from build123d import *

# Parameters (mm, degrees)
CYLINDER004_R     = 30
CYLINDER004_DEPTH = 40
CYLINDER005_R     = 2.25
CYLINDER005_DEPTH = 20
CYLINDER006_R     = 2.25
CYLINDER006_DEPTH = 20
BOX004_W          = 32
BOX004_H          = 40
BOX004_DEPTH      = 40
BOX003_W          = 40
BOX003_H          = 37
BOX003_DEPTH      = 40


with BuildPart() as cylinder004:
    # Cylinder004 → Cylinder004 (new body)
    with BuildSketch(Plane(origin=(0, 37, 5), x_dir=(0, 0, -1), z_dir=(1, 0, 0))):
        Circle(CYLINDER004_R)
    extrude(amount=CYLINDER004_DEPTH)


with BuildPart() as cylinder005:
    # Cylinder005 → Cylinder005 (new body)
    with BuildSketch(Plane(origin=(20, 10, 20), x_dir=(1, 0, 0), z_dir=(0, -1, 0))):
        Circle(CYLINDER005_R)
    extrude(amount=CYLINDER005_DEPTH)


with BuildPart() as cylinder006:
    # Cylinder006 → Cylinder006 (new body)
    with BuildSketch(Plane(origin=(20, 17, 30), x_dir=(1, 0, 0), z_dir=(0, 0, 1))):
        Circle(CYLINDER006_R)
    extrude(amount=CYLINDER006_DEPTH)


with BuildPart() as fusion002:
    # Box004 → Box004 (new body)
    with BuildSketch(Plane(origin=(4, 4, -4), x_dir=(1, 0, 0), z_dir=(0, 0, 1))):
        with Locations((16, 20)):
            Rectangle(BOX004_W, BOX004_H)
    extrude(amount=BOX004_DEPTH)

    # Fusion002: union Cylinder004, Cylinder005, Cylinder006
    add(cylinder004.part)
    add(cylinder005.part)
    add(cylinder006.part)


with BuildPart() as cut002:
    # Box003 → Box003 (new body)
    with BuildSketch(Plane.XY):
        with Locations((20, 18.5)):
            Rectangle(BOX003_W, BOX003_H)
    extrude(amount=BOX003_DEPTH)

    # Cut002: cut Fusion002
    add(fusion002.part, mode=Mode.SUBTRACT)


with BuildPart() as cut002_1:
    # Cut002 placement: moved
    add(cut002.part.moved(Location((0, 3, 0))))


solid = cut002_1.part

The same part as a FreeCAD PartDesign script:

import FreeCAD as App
import Part
import Sketcher
Q = App.Units.Quantity

doc = App.newDocument("Part")
body = doc.addObject("PartDesign::Body", "Body")

sketch1 = doc.addObject("Sketcher::SketchObject", "Sketch")
body.addObject(sketch1)
sketch1.AttachmentSupport = (doc.YZ_Plane, [""])
sketch1.MapMode = "FlatFace"
sketch1.addGeometry(Part.Circle(App.Vector(37, 5, 0), App.Vector(0, 0, 1), 30), False)
sketch1.addConstraint([
    Sketcher.Constraint("Diameter", 0, Q("60 mm")),
    Sketcher.Constraint("DistanceX", -1, 1, 0, 3, Q("37 mm")),
    Sketcher.Constraint("DistanceY", -1, 1, 0, 3, Q("5 mm")),
])
pad1 = doc.addObject("PartDesign::Pad", "Pad")
body.addObject(pad1)
pad1.Profile = sketch1
pad1.Length = 40
body2 = doc.addObject("PartDesign::Body", "Body001")

sketch2 = doc.addObject("Sketcher::SketchObject", "Sketch001")
body2.addObject(sketch2)
sketch2.AttachmentSupport = (doc.getObject("XZ_Plane001"), [""])
sketch2.MapMode = "FlatFace"
sketch2.AttachmentOffset = App.Placement(App.Vector(0, 0, -10), App.Rotation())
sketch2.addGeometry(Part.Circle(App.Vector(20, 20, 0), App.Vector(0, 0, 1), 2.25), False)
sketch2.addConstraint([
    Sketcher.Constraint("Diameter", 0, Q("4.5 mm")),
    Sketcher.Constraint("DistanceX", -1, 1, 0, 3, Q("20 mm")),
    Sketcher.Constraint("DistanceY", -1, 1, 0, 3, Q("20 mm")),
])
pad2 = doc.addObject("PartDesign::Pad", "Pad001")
body2.addObject(pad2)
pad2.Profile = sketch2
pad2.Length = 20
body3 = doc.addObject("PartDesign::Body", "Body002")

sketch3 = doc.addObject("Sketcher::SketchObject", "Sketch002")
body3.addObject(sketch3)
sketch3.AttachmentSupport = (doc.getObject("XY_Plane002"), [""])
sketch3.MapMode = "FlatFace"
sketch3.AttachmentOffset = App.Placement(App.Vector(0, 0, 30), App.Rotation())
sketch3.addGeometry(Part.Circle(App.Vector(20, 17, 0), App.Vector(0, 0, 1), 2.25), False)
sketch3.addConstraint([
    Sketcher.Constraint("Diameter", 0, Q("4.5 mm")),
    Sketcher.Constraint("DistanceX", -1, 1, 0, 3, Q("20 mm")),
    Sketcher.Constraint("DistanceY", -1, 1, 0, 3, Q("17 mm")),
])
pad3 = doc.addObject("PartDesign::Pad", "Pad002")
body3.addObject(pad3)
pad3.Profile = sketch3
pad3.Length = 20
body4 = doc.addObject("PartDesign::Body", "Body003")

sketch4 = doc.addObject("Sketcher::SketchObject", "Sketch003")
body4.addObject(sketch4)
sketch4.AttachmentSupport = (doc.getObject("XY_Plane003"), [""])
sketch4.MapMode = "FlatFace"
sketch4.AttachmentOffset = App.Placement(App.Vector(0, 0, -4), App.Rotation())
sketch4.addGeometry([
    Part.LineSegment(App.Vector(4, 44, 0), App.Vector(4, 4, 0)),
    Part.LineSegment(App.Vector(4, 4, 0), App.Vector(36, 4, 0)),
    Part.LineSegment(App.Vector(36, 4, 0), App.Vector(36, 44, 0)),
    Part.LineSegment(App.Vector(36, 44, 0), App.Vector(4, 44, 0)),
], False)
sketch4.addConstraint([
    Sketcher.Constraint("Coincident", 0, 2, 1, 1),
    Sketcher.Constraint("Coincident", 1, 2, 2, 1),
    Sketcher.Constraint("Coincident", 2, 2, 3, 1),
    Sketcher.Constraint("Coincident", 3, 2, 0, 1),
    Sketcher.Constraint("Vertical", 0),
    Sketcher.Constraint("Horizontal", 1),
    Sketcher.Constraint("Vertical", 2),
    Sketcher.Constraint("Horizontal", 3),
    Sketcher.Constraint("DistanceX", 1, 1, 1, 2, Q("32 mm")),
    Sketcher.Constraint("DistanceY", 0, 2, 0, 1, Q("40 mm")),
    Sketcher.Constraint("DistanceX", -1, 1, 0, 2, Q("4 mm")),
    Sketcher.Constraint("DistanceY", -1, 1, 0, 2, Q("4 mm")),
])
pad4 = doc.addObject("PartDesign::Pad", "Pad003")
body4.addObject(pad4)
pad4.Profile = sketch4
pad4.Length = 40
doc.recompute()

boolean = doc.addObject("PartDesign::Boolean", "Boolean")
body4.addObject(boolean)
boolean.Type = "Fuse"
boolean.addObjects([body])
doc.recompute()

boolean2 = doc.addObject("PartDesign::Boolean", "Boolean001")
body4.addObject(boolean2)
boolean2.Type = "Fuse"
boolean2.addObjects([body2])
doc.recompute()

boolean3 = doc.addObject("PartDesign::Boolean", "Boolean002")
body4.addObject(boolean3)
boolean3.Type = "Fuse"
boolean3.addObjects([body3])
body5 = doc.addObject("PartDesign::Body", "Body004")

sketch5 = doc.addObject("Sketcher::SketchObject", "Sketch004")
body5.addObject(sketch5)
sketch5.AttachmentSupport = (doc.getObject("XY_Plane004"), [""])
sketch5.MapMode = "FlatFace"
sketch5.addGeometry([
    Part.LineSegment(App.Vector(0, 37, 0), App.Vector(0, 0, 0)),
    Part.LineSegment(App.Vector(0, 0, 0), App.Vector(40, 0, 0)),
    Part.LineSegment(App.Vector(40, 0, 0), App.Vector(40, 37, 0)),
    Part.LineSegment(App.Vector(40, 37, 0), App.Vector(0, 37, 0)),
], False)
sketch5.addConstraint([
    Sketcher.Constraint("Coincident", 0, 2, 1, 1),
    Sketcher.Constraint("Coincident", 1, 2, 2, 1),
    Sketcher.Constraint("Coincident", 2, 2, 3, 1),
    Sketcher.Constraint("Coincident", 3, 2, 0, 1),
    Sketcher.Constraint("Vertical", 0),
    Sketcher.Constraint("Horizontal", 1),
    Sketcher.Constraint("Vertical", 2),
    Sketcher.Constraint("Horizontal", 3),
    Sketcher.Constraint("Coincident", 0, 2, -1, 1),
    Sketcher.Constraint("DistanceX", 1, 1, 1, 2, Q("40 mm")),
    Sketcher.Constraint("DistanceY", 0, 2, 0, 1, Q("37 mm")),
])
pad5 = doc.addObject("PartDesign::Pad", "Pad004")
body5.addObject(pad5)
pad5.Profile = sketch5
pad5.Length = 40
doc.recompute()

boolean4 = doc.addObject("PartDesign::Boolean", "Boolean003")
body5.addObject(boolean4)
boolean4.Type = "Cut"
boolean4.addObjects([body4])
body6 = doc.addObject("PartDesign::Body", "Body005")
doc.recompute()

body5.Placement = App.Placement(App.Vector(0, 3, 0), App.Rotation(App.Vector(0, 0, 1), 0))
boolean5 = doc.addObject("PartDesign::Boolean", "Boolean004")
body6.addObject(boolean5)
boolean5.Type = "Fuse"
boolean5.addObjects([body5])

doc.recompute()
